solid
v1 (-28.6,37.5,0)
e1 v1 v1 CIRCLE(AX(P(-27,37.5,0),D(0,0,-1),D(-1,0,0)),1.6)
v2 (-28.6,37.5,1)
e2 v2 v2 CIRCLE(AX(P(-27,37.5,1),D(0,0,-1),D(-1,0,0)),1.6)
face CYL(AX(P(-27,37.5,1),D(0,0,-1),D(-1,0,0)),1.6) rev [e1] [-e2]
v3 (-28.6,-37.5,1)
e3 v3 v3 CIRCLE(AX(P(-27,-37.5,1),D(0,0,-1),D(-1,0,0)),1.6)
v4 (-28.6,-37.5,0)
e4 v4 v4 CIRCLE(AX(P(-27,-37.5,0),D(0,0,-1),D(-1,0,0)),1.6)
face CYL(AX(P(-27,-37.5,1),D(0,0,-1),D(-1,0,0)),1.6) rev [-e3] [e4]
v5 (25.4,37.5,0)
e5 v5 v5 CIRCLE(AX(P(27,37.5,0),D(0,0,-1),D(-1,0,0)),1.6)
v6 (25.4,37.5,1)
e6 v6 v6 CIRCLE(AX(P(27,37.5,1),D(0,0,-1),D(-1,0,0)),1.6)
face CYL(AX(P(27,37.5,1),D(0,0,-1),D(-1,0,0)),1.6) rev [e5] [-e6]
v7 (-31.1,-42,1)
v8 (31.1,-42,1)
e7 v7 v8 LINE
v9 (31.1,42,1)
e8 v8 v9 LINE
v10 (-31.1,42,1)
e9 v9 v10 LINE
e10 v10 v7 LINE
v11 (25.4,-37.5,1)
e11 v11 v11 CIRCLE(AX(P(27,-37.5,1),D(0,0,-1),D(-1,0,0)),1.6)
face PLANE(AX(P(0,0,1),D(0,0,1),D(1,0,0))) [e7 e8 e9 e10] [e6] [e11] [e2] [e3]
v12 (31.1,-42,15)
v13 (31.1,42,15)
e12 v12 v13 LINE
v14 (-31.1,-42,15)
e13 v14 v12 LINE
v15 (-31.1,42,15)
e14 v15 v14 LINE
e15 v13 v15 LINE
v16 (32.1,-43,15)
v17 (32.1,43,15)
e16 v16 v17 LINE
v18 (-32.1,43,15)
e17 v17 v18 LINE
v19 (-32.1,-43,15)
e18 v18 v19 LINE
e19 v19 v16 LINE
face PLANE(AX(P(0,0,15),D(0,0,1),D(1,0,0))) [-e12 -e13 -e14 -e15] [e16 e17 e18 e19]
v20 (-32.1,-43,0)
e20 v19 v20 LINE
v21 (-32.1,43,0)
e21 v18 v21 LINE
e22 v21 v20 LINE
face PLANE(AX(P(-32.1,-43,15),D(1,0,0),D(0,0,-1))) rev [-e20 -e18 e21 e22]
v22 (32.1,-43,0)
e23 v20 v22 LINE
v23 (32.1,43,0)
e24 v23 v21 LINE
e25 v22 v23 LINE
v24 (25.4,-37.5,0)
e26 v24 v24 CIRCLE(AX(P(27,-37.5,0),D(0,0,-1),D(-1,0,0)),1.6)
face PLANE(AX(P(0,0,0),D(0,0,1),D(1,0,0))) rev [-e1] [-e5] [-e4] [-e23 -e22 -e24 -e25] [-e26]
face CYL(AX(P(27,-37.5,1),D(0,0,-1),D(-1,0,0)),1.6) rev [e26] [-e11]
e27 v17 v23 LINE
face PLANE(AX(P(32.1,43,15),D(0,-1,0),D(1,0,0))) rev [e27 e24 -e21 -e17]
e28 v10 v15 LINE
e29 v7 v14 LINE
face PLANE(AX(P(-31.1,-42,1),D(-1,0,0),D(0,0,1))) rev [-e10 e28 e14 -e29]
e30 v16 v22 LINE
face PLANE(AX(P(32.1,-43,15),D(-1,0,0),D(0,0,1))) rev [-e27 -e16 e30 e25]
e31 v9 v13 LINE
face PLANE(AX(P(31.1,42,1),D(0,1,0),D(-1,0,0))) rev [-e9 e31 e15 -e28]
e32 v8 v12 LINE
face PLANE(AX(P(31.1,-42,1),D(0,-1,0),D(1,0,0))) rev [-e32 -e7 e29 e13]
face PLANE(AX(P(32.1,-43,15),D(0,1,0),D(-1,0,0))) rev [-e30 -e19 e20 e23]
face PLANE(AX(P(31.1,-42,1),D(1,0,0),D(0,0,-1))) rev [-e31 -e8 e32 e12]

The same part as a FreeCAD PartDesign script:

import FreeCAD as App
import Part
import Sketcher


def add_polygon(sketch, points):
    """Adds a closed chain of lines whose ends are joined by coincident constraints."""
    first, n = sketch.GeometryCount, len(points)
    for a, b in zip(points, points[1:] + points[:1]):
        sketch.addGeometry(Part.LineSegment(App.Vector(*a, 0), App.Vector(*b, 0)), False)
    for i in range(n):
        sketch.addConstraint(Sketcher.Constraint("Coincident", first + i, 2, first + (i + 1) % n, 1))

doc = App.newDocument("Part")
body = doc.addObject("PartDesign::Body", "Body")

sketch1 = doc.addObject("Sketcher::SketchObject", "Sketch")
body.addObject(sketch1)
sketch1.AttachmentSupport = (doc.XY_Plane, [""])
sketch1.MapMode = "FlatFace"
add_polygon(sketch1, [(-32.1, 43), (-32.1, -43), (32.1, -43), (32.1, 43)])
sketch1.addConstraint([
    Sketcher.Constraint("Vertical", 0),
    Sketcher.Constraint("Horizontal", 1),
    Sketcher.Constraint("Vertical", 2),
    Sketcher.Constraint("Horizontal", 3),
    Sketcher.Constraint("Symmetric", 0, 2, 2, 2, -1, 1),
    Sketcher.Constraint("DistanceY", 0, 2, 0, 1, 86.0),
    Sketcher.Constraint("DistanceX", 1, 1, 1, 2, 64.2),
])
pad1 = doc.addObject("PartDesign::Pad", "Pad")
body.addObject(pad1)
pad1.Profile = sketch1
pad1.Length = 15

sketch2 = doc.addObject("Sketcher::SketchObject", "Sketch001")
body.addObject(sketch2)
sketch2.AttachmentSupport = (doc.XY_Plane, [""])
sketch2.MapMode = "FlatFace"
sketch2.AttachmentOffset = App.Placement(App.Vector(0, 0, 15), App.Rotation())
add_polygon(sketch2, [(-31.1, 42), (-31.1, -42), (31.1, -42), (31.1, 42)])
sketch2.addConstraint([
    Sketcher.Constraint("Vertical", 0),
    Sketcher.Constraint("Horizontal", 1),
    Sketcher.Constraint("Vertical", 2),
    Sketcher.Constraint("Horizontal", 3),
    Sketcher.Constraint("Symmetric", 0, 2, 2, 2, -1, 1),
    Sketcher.Constraint("DistanceY", 0, 2, 0, 1, 84.0),
    Sketcher.Constraint("DistanceX", 1, 1, 1, 2, 62.2),
])
pocket1 = doc.addObject("PartDesign::Pocket", "Pocket")
body.addObject(pocket1)
pocket1.Profile = sketch2
pocket1.Length = 14

sketch3 = doc.addObject("Sketcher::SketchObject", "Sketch002")
body.addObject(sketch3)
sketch3.AttachmentSupport = (doc.XY_Plane, [""])
sketch3.MapMode = "FlatFace"
sketch3.addGeometry([
    Part.Circle(App.Vector(27, 37.5, 0), App.Vector(0, 0, 1), 1.6),
    Part.Circle(App.Vector(-27, 37.5, 0), App.Vector(0, 0, 1), 1.6),
    Part.Circle(App.Vector(27, -37.5, 0), App.Vector(0, 0, 1), 1.6),
    Part.Circle(App.Vector(-27, -37.5, 0), App.Vector(0, 0, 1), 1.6),
], False)
sketch3.addConstraint([
    Sketcher.Constraint("Equal", 0, 1),
    Sketcher.Constraint("Equal", 1, 2),
    Sketcher.Constraint("Equal", 2, 3),
    Sketcher.Constraint("Symmetric", 1, 3, 2, 3, -1, 1),
    Sketcher.Constraint("Symmetric", 0, 3, 3, 3, -1, 1),
    Sketcher.Constraint("Symmetric", 0, 3, 1, 3, -2),
    Sketcher.Constraint("Diameter", 0, 3.2),
    Sketcher.Constraint("DistanceX", -1, 1, 0, 3, 27.0),
    Sketcher.Constraint("DistanceY", 2, 3, 0, 3, 75.0),
])
pocket2 = doc.addObject("PartDesign::Pocket", "Pocket001")
body.addObject(pocket2)
pocket2.Profile = sketch3
pocket2.Length = 1
pocket2.Reversed = True

doc.recompute()
